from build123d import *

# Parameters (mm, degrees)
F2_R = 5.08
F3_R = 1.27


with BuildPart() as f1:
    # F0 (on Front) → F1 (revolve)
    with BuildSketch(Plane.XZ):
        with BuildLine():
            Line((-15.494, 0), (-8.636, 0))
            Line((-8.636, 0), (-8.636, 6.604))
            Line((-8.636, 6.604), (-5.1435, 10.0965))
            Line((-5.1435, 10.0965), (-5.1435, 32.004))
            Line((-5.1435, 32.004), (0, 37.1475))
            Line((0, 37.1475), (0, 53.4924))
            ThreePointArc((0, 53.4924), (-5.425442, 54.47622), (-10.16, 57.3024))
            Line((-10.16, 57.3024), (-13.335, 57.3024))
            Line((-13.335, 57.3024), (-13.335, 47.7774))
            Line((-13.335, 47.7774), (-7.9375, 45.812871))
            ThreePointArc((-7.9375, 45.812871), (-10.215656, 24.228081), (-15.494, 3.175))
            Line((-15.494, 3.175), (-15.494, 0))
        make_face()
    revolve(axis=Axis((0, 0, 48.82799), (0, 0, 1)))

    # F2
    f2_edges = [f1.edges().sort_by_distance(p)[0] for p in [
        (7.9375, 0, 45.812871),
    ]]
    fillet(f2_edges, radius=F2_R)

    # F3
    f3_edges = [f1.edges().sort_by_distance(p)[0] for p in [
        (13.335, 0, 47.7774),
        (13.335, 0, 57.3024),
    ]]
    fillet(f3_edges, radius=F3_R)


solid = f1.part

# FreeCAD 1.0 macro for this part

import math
import FreeCAD as App
import Part
import Sketcher
Q = App.Units.Quantity


def edges_at(feature, points):
    """Names of the edges that pass closest to the given points."""
    edges = feature.Shape.Edges
    near = lambda p: min(range(len(edges)), key=lambda i: edges[i].distToShape(Part.Vertex(*p))[0])
    return sorted({f"Edge{near(p) + 1}" for p in points})

doc = App.newDocument("Part")
params = doc.addObject("Spreadsheet::Sheet", "Params")
for row, (alias, value) in enumerate([
    ("sketch1_width", "0.27 in"),
    ("sketch1_height", "0.26 in"),
    ("sketch1_width2", "0.125 in"),
    ("sketch1_height2", "0.375 in"),
    ("revolution_angle", "360 deg"),
    ("fillet_radius", "0.2 in"),
    ("fillet2_radius", "0.05 in"),
], start=1):
    params.set(f"A{row}", alias)
    params.set(f"B{row}", "=" + value)
    params.setAlias(f"B{row}", alias)

body = doc.addObject("PartDesign::Body", "Body")

# Sketch on XZ plane
sketch1 = doc.addObject("Sketcher::SketchObject", "Sketch")
body.addObject(sketch1)
sketch1.AttachmentSupport = (doc.XZ_Plane, [""])
sketch1.MapMode = "FlatFace"
sketch1.addGeometry([
    Part.LineSegment(App.Vector(-15.5, 0, 0), App.Vector(-8.6, 0, 0)),  # 0
    Part.LineSegment(App.Vector(-8.6, 0, 0), App.Vector(-8.6, 6.6, 0)),  # 1
    Part.LineSegment(App.Vector(-8.6, 6.6, 0), App.Vector(-5.1, 10.1, 0)),  # 2
    Part.LineSegment(App.Vector(-5.1, 10.1, 0), App.Vector(-5.1, 32, 0)),  # 3
    Part.LineSegment(App.Vector(-5.1, 32, 0), App.Vector(0, 37.1, 0)),  # 4
    Part.LineSegment(App.Vector(0, 37.1, 0), App.Vector(0, 53.5, 0)),  # 5
    Part.ArcOfCircle(Part.Circle(App.Vector(0, 68.9, 0), App.Vector(0, 0, 1), 15.5), math.radians(-131), math.radians(-90)),  # 6
    Part.LineSegment(App.Vector(-10.2, 57.3, 0), App.Vector(-13.3, 57.3, 0)),  # 7
    Part.LineSegment(App.Vector(-13.3, 57.3, 0), App.Vector(-13.3, 47.8, 0)),  # 8
    Part.LineSegment(App.Vector(-13.3, 47.8, 0), App.Vector(-7.9, 45.8, 0)),  # 9
    Part.ArcOfCircle(Part.Circle(App.Vector(-162.5, 51.2, 0), App.Vector(0, 0, 1), 154.6), math.radians(-18.1), math.radians(-2)),  # 10
    Part.LineSegment(App.Vector(-15.5, 3.2, 0), App.Vector(-15.5, 0, 0)),  # 11
], False)
sketch1.addConstraint([
    Sketcher.Constraint("Coincident", 0, 2, 1, 1),
    Sketcher.Constraint("Coincident", 1, 2, 2, 1),
    Sketcher.Constraint("Coincident", 2, 2, 3, 1),
    Sketcher.Constraint("Coincident", 3, 2, 4, 1),
    Sketcher.Constraint("Coincident", 4, 2, 5, 1),
    Sketcher.Constraint("Coincident", 5, 2, 6, 2),
    Sketcher.Constraint("Coincident", 6, 1, 7, 1),
    Sketcher.Constraint("Coincident", 7, 2, 8, 1),
    Sketcher.Constraint("Coincident", 8, 2, 9, 1),
    Sketcher.Constraint("Coincident", 9, 2, 10, 2),
    Sketcher.Constraint("Coincident", 10, 1, 11, 1),
    Sketcher.Constraint("Coincident", 11, 2, 0, 1),
    Sketcher.Constraint("Horizontal", 0),
    Sketcher.Constraint("Vertical", 1),
    Sketcher.Constraint("Vertical", 3),
    Sketcher.Constraint("Vertical", 5),
    Sketcher.Constraint("Horizontal", 7),
    Sketcher.Constraint("Vertical", 8),
    Sketcher.Constraint("Vertical", 11),
    Sketcher.Constraint("PointOnObject", 6, 3, -2),
    Sketcher.Constraint("PointOnObject", 0, 2, -1),
    Sketcher.Constraint("PointOnObject", 4, 2, -2),
    Sketcher.Constraint("Parallel", 2, 4),
    Sketcher.Constraint("Equal", 7, 11),
    Sketcher.Constraint("Angle", 2, Q("45 deg")),
    Sketcher.Constraint("Angle", 9, Q("-19.999997 deg")),
    Sketcher.Constraint("DistanceY", 1, 2, 3, 2, Q("1 in")),
    Sketcher.Constraint("DistanceX", 0, 1, 0, 2, Q("0.27 in")),
    Sketcher.Constraint("DistanceY", 1, 1, 1, 2, Q("0.26 in")),
    Sketcher.Constraint("DistanceX", 6, 1, -1, 1, Q("0.4 in")),
    Sketcher.Constraint("DistanceX", 7, 2, 7, 1, Q("0.125 in")),
    Sketcher.Constraint("DistanceY", 8, 2, 8, 1, Q("0.375 in")),
    Sketcher.Constraint("DistanceX", 0, 2, -1, 1, Q("0.34 in")),
    Sketcher.Constraint("DistanceY", 5, 2, 6, 1, Q("0.15 in")),
    Sketcher.Constraint("DistanceY", 3, 1, 3, 2, Q("0.8625 in")),
    Sketcher.Constraint("DistanceY", 5, 1, 5, 2, Q("0.6435 in")),
    Sketcher.Constraint("DistanceX", 9, 2, -1, 1, Q("0.3125 in")),
    Sketcher.Constraint("Radius", 10, Q("154.611895 mm")),
])
sketch1.setExpression("Constraints[27]", "Params.sketch1_width")
sketch1.setExpression("Constraints[28]", "Params.sketch1_height")
sketch1.setExpression("Constraints[30]", "Params.sketch1_width2")
sketch1.setExpression("Constraints[31]", "Params.sketch1_height2")
revolution = doc.addObject("PartDesign::Revolution", "Revolution")
body.addObject(revolution)
revolution.Profile = sketch1
revolution.ReferenceAxis = (sketch1, ["V_Axis"])
revolution.setExpression("Angle", "Params.revolution_angle")
doc.recompute()

fillet = doc.addObject("PartDesign::Fillet", "Fillet")
body.addObject(fillet)
fillet.Base = (revolution, edges_at(revolution, [(7.938, 0, 45.813)]))
fillet.setExpression("Radius", "Params.fillet_radius")
doc.recompute()

fillet2 = doc.addObject("PartDesign::Fillet", "Fillet001")
body.addObject(fillet2)
fillet2.Base = (fillet, edges_at(fillet, [(13.335, 0, 47.777), (13.335, 0, 57.302)]))
fillet2.setExpression("Radius", "Params.fillet2_radius")

doc.recompute()
